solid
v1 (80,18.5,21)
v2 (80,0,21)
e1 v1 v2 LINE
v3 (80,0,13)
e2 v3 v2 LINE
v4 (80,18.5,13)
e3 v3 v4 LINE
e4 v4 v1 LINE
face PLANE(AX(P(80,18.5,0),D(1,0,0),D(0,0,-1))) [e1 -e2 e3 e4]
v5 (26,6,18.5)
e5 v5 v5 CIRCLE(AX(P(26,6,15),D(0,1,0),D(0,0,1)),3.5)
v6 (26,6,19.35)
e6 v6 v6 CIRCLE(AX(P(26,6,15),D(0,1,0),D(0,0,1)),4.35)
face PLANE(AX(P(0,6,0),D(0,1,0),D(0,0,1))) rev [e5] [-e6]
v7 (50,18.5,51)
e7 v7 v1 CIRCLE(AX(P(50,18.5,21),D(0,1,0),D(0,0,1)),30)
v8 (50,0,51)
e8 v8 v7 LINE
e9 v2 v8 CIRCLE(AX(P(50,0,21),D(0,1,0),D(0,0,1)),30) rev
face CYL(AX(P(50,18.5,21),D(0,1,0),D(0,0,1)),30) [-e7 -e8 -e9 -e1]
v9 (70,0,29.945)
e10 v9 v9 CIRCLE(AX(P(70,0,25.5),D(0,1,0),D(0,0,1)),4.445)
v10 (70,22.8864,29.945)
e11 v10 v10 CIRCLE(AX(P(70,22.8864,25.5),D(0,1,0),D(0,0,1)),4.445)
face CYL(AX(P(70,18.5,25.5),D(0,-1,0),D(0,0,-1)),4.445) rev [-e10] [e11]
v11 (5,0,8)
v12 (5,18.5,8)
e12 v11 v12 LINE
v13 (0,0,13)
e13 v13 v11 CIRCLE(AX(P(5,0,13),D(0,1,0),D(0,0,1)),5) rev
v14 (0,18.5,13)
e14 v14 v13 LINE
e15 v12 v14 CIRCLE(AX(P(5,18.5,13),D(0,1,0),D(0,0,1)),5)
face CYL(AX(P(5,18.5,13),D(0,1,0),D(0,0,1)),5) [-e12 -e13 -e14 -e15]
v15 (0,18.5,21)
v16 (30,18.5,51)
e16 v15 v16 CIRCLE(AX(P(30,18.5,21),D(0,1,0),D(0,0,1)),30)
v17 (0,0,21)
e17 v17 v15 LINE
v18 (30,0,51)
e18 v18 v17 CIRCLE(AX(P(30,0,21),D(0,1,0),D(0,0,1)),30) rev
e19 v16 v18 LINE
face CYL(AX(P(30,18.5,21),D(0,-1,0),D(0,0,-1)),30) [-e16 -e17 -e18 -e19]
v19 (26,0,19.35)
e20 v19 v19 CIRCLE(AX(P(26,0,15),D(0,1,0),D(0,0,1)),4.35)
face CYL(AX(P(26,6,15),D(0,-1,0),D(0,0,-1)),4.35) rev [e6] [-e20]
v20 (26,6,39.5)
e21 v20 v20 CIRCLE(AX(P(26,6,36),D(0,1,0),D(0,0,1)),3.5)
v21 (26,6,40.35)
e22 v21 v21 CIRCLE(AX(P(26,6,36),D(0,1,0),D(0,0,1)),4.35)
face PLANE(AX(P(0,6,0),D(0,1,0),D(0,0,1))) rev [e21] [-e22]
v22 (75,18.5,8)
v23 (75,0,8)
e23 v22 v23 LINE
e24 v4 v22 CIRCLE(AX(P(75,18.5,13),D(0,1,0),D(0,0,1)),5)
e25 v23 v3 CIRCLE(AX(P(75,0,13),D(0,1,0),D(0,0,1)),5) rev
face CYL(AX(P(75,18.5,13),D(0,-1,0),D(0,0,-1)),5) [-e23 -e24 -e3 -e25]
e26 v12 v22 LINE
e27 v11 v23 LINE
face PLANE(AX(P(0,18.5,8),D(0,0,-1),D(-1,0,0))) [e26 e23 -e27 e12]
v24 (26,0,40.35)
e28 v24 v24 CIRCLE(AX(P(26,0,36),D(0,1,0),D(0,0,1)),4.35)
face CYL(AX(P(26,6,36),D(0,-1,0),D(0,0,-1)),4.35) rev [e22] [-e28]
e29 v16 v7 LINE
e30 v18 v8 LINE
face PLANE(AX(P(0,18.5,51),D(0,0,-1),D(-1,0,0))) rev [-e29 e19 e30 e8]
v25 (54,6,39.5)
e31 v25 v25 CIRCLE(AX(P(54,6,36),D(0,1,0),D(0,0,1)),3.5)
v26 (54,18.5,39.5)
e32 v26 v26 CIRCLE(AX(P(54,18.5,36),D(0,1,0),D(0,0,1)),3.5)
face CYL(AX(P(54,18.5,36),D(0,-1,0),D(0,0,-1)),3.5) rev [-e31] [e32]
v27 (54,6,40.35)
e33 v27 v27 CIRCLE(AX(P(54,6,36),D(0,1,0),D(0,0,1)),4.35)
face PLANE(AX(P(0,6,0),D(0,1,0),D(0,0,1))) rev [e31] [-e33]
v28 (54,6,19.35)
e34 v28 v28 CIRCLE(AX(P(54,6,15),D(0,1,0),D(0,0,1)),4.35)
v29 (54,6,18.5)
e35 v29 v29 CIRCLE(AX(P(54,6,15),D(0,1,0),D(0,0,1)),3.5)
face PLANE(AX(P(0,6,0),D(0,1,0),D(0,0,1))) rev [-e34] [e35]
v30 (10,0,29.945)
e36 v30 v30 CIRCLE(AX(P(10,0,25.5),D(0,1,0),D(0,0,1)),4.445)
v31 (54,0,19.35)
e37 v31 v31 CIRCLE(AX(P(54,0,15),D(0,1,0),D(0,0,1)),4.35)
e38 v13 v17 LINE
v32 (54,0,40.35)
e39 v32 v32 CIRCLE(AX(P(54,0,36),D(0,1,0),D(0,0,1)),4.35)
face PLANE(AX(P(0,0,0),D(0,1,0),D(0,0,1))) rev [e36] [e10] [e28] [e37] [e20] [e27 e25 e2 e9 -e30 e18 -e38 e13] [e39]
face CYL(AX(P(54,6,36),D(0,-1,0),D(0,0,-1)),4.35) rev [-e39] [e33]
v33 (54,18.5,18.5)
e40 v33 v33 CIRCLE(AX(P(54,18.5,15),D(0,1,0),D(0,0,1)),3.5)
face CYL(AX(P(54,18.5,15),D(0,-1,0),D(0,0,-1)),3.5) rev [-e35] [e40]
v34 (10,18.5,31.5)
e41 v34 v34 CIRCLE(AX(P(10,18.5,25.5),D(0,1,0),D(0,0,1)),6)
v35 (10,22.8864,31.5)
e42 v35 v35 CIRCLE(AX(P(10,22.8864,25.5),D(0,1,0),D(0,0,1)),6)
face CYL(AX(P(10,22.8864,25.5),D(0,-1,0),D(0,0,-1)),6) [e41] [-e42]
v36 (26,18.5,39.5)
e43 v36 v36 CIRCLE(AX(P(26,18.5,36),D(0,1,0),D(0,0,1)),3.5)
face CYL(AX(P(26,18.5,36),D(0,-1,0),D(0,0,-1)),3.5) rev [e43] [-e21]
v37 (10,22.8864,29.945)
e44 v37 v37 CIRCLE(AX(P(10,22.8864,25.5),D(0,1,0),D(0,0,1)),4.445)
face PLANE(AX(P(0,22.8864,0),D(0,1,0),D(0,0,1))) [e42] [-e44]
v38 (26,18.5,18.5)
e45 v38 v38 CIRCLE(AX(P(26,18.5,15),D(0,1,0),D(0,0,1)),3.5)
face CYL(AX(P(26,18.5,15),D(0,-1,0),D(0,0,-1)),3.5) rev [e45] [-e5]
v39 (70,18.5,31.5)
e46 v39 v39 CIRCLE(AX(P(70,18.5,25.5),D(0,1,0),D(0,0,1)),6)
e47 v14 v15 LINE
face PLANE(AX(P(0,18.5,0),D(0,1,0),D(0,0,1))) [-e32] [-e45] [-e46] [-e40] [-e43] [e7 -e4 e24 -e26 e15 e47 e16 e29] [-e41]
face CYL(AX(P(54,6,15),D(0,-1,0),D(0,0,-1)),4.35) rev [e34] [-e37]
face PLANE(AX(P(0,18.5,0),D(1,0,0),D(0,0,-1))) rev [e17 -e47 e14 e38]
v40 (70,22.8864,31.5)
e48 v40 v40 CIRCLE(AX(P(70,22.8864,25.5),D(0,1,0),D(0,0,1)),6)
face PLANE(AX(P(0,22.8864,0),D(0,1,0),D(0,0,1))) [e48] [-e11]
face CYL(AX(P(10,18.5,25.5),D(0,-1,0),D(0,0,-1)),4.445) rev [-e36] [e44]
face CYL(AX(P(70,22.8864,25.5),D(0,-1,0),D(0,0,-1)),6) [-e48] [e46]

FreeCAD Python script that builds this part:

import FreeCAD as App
import Part
import Sketcher

V = App.Vector
Q = App.Units.Quantity


def edges_at(feature, points):
    """Names of the edges that pass closest to the given points."""
    edges = feature.Shape.Edges
    near = lambda p: min(range(len(edges)), key=lambda i: edges[i].distToShape(Part.Vertex(*p))[0])
    return sorted({f"Edge{near(p) + 1}" for p in points})

doc = App.newDocument("Part")
body = doc.addObject("PartDesign::Body", "Body")

sketch1 = body.newObject("Sketcher::SketchObject", "Sketch")
sketch1.AttachmentSupport = (doc.getObject("XZ_Plane"), [""])
sketch1.MapMode = "FlatFace"
sketch1.addGeometry([
    Part.LineSegment(V(0, 8, 0), V(0, 51, 0)),
    Part.LineSegment(V(0, 51, 0), V(80, 51, 0)),
    Part.LineSegment(V(80, 51, 0), V(80, 8, 0)),
    Part.LineSegment(V(80, 8, 0), V(0, 8, 0)),
    Part.Circle(V(26, 36, 0), V(0, 0, 1), 3.5),
    Part.Circle(V(54, 36, 0), V(0, 0, 1), 3.5),
    Part.Circle(V(10, 25.5, 0), V(0, 0, 1), 4.445),
    Part.Circle(V(26, 15, 0), V(0, 0, 1), 3.5),
    Part.Circle(V(70, 25.5, 0), V(0, 0, 1), 4.445),
    Part.Circle(V(54, 15, 0), V(0, 0, 1), 3.5),
], False)
sketch1.addConstraint([
    Sketcher.Constraint("Coincident", 0, 2, 1, 1),
    Sketcher.Constraint("Coincident", 1, 2, 2, 1),
    Sketcher.Constraint("Coincident", 2, 2, 3, 1),
    Sketcher.Constraint("Coincident", 3, 2, 0, 1),
    Sketcher.Constraint("Vertical", 0),
    Sketcher.Constraint("Horizontal", 1),
    Sketcher.Constraint("Vertical", 2),
    Sketcher.Constraint("Horizontal", 3),
    Sketcher.Constraint("Equal", 4, 5),
    Sketcher.Constraint("Equal", 5, 7),
    Sketcher.Constraint("Equal", 6, 8),
    Sketcher.Constraint("Equal", 7, 9),
    Sketcher.Constraint("PointOnObject", 0, 2, -2),
    Sketcher.Constraint("Horizontal", 4, 3, 5, 3),
    Sketcher.Constraint("Horizontal", 6, 3, 8, 3),
    Sketcher.Constraint("Horizontal", 7, 3, 9, 3),
    Sketcher.Constraint("Vertical", 4, 3, 7, 3),
    Sketcher.Constraint("Vertical", 5, 3, 9, 3),
    Sketcher.Constraint("Diameter", 4, Q("7 mm")),
    Sketcher.Constraint("Diameter", 6, Q("8.89 mm")),
    Sketcher.Constraint("DistanceX", 1, 1, 1, 2, Q("80 mm")),
    Sketcher.Constraint("DistanceY", 0, 1, 0, 2, Q("43 mm")),
    Sketcher.Constraint("DistanceX", -1, 1, 4, 3, Q("26 mm")),
    Sketcher.Constraint("DistanceY", -1, 1, 4, 3, Q("36 mm")),
    Sketcher.Constraint("DistanceX", -1, 1, 5, 3, Q("54 mm")),
    Sketcher.Constraint("DistanceX", -1, 1, 6, 3, Q("10 mm")),
    Sketcher.Constraint("DistanceY", -1, 1, 7, 3, Q("15 mm")),
    Sketcher.Constraint("DistanceX", -1, 1, 8, 3, Q("70 mm")),
    Sketcher.Constraint("DistanceY", -1, 1, 0, 2, Q("51 mm")),
    Sketcher.Constraint("DistanceY", -1, 1, 6, 3, Q("25.5 mm")),
])
pad1 = body.newObject("PartDesign::Pad", "Pad")
pad1.Profile = sketch1
pad1.Length = 18.5
pad1.Reversed = True

sketch2 = body.newObject("Sketcher::SketchObject", "Sketch001")
sketch2.AttachmentSupport = (doc.getObject("XZ_Plane"), [""])
sketch2.MapMode = "FlatFace"
sketch2.addGeometry([
    Part.Circle(V(26, 15, 0), V(0, 0, 1), 4.35),
    Part.Circle(V(26, 15, 0), V(0, 0, 1), 3.5),
    Part.Circle(V(54, 15, 0), V(0, 0, 1), 4.35),
    Part.Circle(V(54, 15, 0), V(0, 0, 1), 3.5),
    Part.Circle(V(54, 36, 0), V(0, 0, 1), 4.35),
    Part.Circle(V(54, 36, 0), V(0, 0, 1), 3.5),
    Part.Circle(V(26, 36, 0), V(0, 0, 1), 4.35),
    Part.Circle(V(26, 36, 0), V(0, 0, 1), 3.5),
], False)
sketch2.addConstraint([
    Sketcher.Constraint("Coincident", 1, 3, 0, 3),
    Sketcher.Constraint("Coincident", 3, 3, 2, 3),
    Sketcher.Constraint("Coincident", 5, 3, 4, 3),
    Sketcher.Constraint("Coincident", 7, 3, 6, 3),
    Sketcher.Constraint("Equal", 0, 2),
    Sketcher.Constraint("Equal", 1, 3),
    Sketcher.Constraint("Equal", 2, 4),
    Sketcher.Constraint("Equal", 3, 5),
    Sketcher.Constraint("Equal", 4, 6),
    Sketcher.Constraint("Equal", 5, 7),
    Sketcher.Constraint("Horizontal", 1, 3, 2, 3),
    Sketcher.Constraint("Horizontal", 5, 3, 6, 3),
    Sketcher.Constraint("Vertical", 3, 3, 4, 3),
    Sketcher.Constraint("Vertical", 1, 3, 6, 3),
    Sketcher.Constraint("Diameter", 1, Q("7 mm")),
    Sketcher.Constraint("Diameter", 0, Q("8.7 mm")),
    Sketcher.Constraint("DistanceX", -1, 1, 0, 3, Q("26 mm")),
    Sketcher.Constraint("DistanceY", -1, 1, 0, 3, Q("15 mm")),
    Sketcher.Constraint("DistanceX", -1, 1, 2, 3, Q("54 mm")),
    Sketcher.Constraint("DistanceY", -1, 1, 4, 3, Q("36 mm")),
])
pocket1 = body.newObject("PartDesign::Pocket", "Pocket")
pocket1.Profile = sketch2
pocket1.Length = 6
doc.recompute()

fillet = body.newObject("PartDesign::Fillet", "Fillet")
fillet.Base = (pocket1, edges_at(pocket1, [(80, 9.25, 51), (0, 9.25, 51)]))
fillet.Radius = 30
doc.recompute()

fillet2 = body.newObject("PartDesign::Fillet", "Fillet001")
fillet2.Base = (fillet, edges_at(fillet, [(0, 9.25, 8), (80, 9.25, 8)]))
fillet2.Radius = 5

sketch3 = body.newObject("Sketcher::SketchObject", "Sketch002")
sketch3.AttachmentSupport = (doc.getObject("XZ_Plane"), [""])
sketch3.MapMode = "FlatFace"
sketch3.AttachmentOffset = App.Placement(V(0, 0, -18.5), App.Rotation())
sketch3.addGeometry([
    Part.Circle(V(70, 25.5, 0), V(0, 0, 1), 6),
    Part.Circle(V(70, 25.5, 0), V(0, 0, 1), 4.445),
    Part.Circle(V(10, 25.5, 0), V(0, 0, 1), 6),
    Part.Circle(V(10, 25.5, 0), V(0, 0, 1), 4.445),
], False)
sketch3.addConstraint([
    Sketcher.Constraint("Coincident", 1, 3, 0, 3),
    Sketcher.Constraint("Coincident", 3, 3, 2, 3),
    Sketcher.Constraint("Equal", 0, 2),
    Sketcher.Constraint("Equal", 1, 3),
    Sketcher.Constraint("Horizontal", 1, 3, 2, 3),
    Sketcher.Constraint("Diameter", 0, Q("12 mm")),
    Sketcher.Constraint("Diameter", 1, Q("8.89 mm")),
    Sketcher.Constraint("DistanceX", -1, 1, 0, 3, Q("70 mm")),
    Sketcher.Constraint("DistanceX", -1, 1, 2, 3, Q("10 mm")),
    Sketcher.Constraint("DistanceY", -1, 1, 0, 3, Q("25.5 mm")),
])
pad2 = body.newObject("PartDesign::Pad", "Pad001")
pad2.Profile = sketch3
pad2.Length = 4.3864
pad2.Reversed = True

doc.recompute()
